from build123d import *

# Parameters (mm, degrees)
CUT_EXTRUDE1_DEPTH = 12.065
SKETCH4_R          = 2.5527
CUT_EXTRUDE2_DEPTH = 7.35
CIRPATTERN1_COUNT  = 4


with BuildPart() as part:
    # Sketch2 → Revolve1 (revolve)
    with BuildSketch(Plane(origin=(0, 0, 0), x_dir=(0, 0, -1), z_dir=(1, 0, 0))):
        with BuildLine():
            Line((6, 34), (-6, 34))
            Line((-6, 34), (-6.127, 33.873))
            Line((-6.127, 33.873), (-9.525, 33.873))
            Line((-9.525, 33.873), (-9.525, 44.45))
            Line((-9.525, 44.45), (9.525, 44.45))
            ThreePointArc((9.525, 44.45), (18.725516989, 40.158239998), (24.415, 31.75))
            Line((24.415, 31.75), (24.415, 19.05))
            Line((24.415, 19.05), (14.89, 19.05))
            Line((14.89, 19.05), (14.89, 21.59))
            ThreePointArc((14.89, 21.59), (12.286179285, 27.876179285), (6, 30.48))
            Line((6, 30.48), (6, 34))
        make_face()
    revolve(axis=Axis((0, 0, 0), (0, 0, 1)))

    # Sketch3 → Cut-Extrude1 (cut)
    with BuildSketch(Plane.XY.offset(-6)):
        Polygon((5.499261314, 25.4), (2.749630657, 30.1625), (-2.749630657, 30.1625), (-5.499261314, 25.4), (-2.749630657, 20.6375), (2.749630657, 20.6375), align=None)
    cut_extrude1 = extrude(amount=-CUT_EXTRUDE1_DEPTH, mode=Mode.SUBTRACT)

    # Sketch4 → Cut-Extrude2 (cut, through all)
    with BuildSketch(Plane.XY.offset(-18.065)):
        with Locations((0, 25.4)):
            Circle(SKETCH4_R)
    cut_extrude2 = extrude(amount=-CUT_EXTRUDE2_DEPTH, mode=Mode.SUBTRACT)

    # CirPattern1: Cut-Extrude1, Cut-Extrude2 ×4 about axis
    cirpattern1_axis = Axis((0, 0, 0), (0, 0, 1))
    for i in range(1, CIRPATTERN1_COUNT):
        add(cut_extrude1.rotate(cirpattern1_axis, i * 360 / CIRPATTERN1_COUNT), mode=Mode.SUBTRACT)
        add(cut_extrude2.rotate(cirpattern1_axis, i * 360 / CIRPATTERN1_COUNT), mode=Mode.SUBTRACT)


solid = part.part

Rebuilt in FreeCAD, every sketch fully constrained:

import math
import FreeCAD as App
import Part
import Sketcher
Q = App.Units.Quantity


def add_polygon(sketch, points):
    """Adds a closed chain of lines whose ends are joined by coincident constraints."""
    first, n = sketch.GeometryCount, len(points)
    for a, b in zip(points, points[1:] + points[:1]):
        sketch.addGeometry(Part.LineSegment(App.Vector(*a, 0), App.Vector(*b, 0)), False)
    for i in range(n):
        sketch.addConstraint(Sketcher.Constraint("Coincident", first + i, 2, first + (i + 1) % n, 1))

doc = App.newDocument("Part")
body = doc.addObject("PartDesign::Body", "Body")

sketch1 = body.newObject("Sketcher::SketchObject", "Sketch")
sketch1.AttachmentSupport = (doc.getObject("YZ_Plane"), [""])
sketch1.MapMode = "FlatFace"
sketch1.addGeometry([
    Part.LineSegment(App.Vector(34, 6, 0), App.Vector(34, -6, 0)),
    Part.LineSegment(App.Vector(34, -6, 0), App.Vector(30.48, -6, 0)),
    Part.ArcOfCircle(Part.Circle(App.Vector(21.59, -6, 0), App.Vector(0, 0, 1), 8.89), math.radians(-90), math.radians(0)),
    Part.LineSegment(App.Vector(21.59, -14.89, 0), App.Vector(19.05, -14.89, 0)),
    Part.LineSegment(App.Vector(19.05, -14.89, 0), App.Vector(19.05, -24.41, 0)),
    Part.LineSegment(App.Vector(19.05, -24.41, 0), App.Vector(31.75, -24.41, 0)),
    Part.ArcOfCircle(Part.Circle(App.Vector(25.66, -6.36, 0), App.Vector(0, 0, 1), 19.05), math.radians(-71), math.radians(-10)),
    Part.LineSegment(App.Vector(44.45, -9.53, 0), App.Vector(44.45, 9.53, 0)),
    Part.LineSegment(App.Vector(44.45, 9.53, 0), App.Vector(33.87, 9.53, 0)),
    Part.LineSegment(App.Vector(33.87, 9.53, 0), App.Vector(33.87, 6.13, 0)),
    Part.LineSegment(App.Vector(33.87, 6.13, 0), App.Vector(34, 6, 0)),
], False)
sketch1.addConstraint([
    Sketcher.Constraint("Coincident", 0, 2, 1, 1),
    Sketcher.Constraint("Coincident", 1, 2, 2, 2),
    Sketcher.Constraint("Tangent", 2, 1, 3, 1),
    Sketcher.Constraint("Coincident", 3, 2, 4, 1),
    Sketcher.Constraint("Coincident", 4, 2, 5, 1),
    Sketcher.Constraint("Coincident", 5, 2, 6, 1),
    Sketcher.Constraint("Coincident", 6, 2, 7, 1),
    Sketcher.Constraint("Coincident", 7, 2, 8, 1),
    Sketcher.Constraint("Coincident", 8, 2, 9, 1),
    Sketcher.Constraint("Coincident", 9, 2, 10, 1),
    Sketcher.Constraint("Coincident", 10, 2, 0, 1),
    Sketcher.Constraint("Vertical", 0),
    Sketcher.Constraint("Horizontal", 1),
    Sketcher.Constraint("Horizontal", 3),
    Sketcher.Constraint("Vertical", 4),
    Sketcher.Constraint("Horizontal", 5),
    Sketcher.Constraint("Vertical", 7),
    Sketcher.Constraint("Horizontal", 8),
    Sketcher.Constraint("Vertical", 9),
    Sketcher.Constraint("Horizontal", 2, 3, 0, 2),
    Sketcher.Constraint("Radius", 2, Q("0.35 in")),
    Sketcher.Constraint("Radius", 6, Q("0.75 in")),
    Sketcher.Constraint("DistanceX", 3, 2, 3, 1, Q("0.1 in")),
    Sketcher.Constraint("DistanceX", 5, 1, 5, 2, Q("0.5 in")),
    Sketcher.Constraint("Angle", 10, Q("-45 deg")),
    Sketcher.Constraint("DistanceY", 7, 1, 7, 2, Q("0.75 in")),
    Sketcher.Constraint("DistanceX", -1, 1, 1, 2, Q("1.2 in")),
    Sketcher.Constraint("DistanceX", 5, 2, 6, 2, Q("0.5 in")),
    Sketcher.Constraint("DistanceY", 4, 2, 4, 1, Q("0.375 in")),
    Sketcher.Constraint("DistanceY", 6, 2, -1, 1, Q("0.375 in")),
    Sketcher.Constraint("DistanceX", 8, 2, 0, 2, Q("0.005 in")),
    Sketcher.Constraint("DistanceX", 1, 2, 1, 1, 3.52),
    Sketcher.Constraint("DistanceY", 0, 2, 0, 1, 12.0),
    Sketcher.Constraint("DistanceY", 9, 2, 9, 1, 3.398),
])
revolution = body.newObject("PartDesign::Revolution", "Revolution")
revolution.Profile = sketch1
revolution.ReferenceAxis = (sketch1, ["V_Axis"])
revolution.Angle = 360

sketch2 = body.newObject("Sketcher::SketchObject", "Sketch001")
sketch2.AttachmentSupport = (doc.getObject("XY_Plane"), [""])
sketch2.MapMode = "FlatFace"
sketch2.AttachmentOffset = App.Placement(App.Vector(0, 0, -6), App.Rotation())
add_polygon(sketch2, [(5, 25), (3, 30), (-3, 30), (-5, 25), (-3, 21), (3, 21)])
sketch2.addConstraint([
    Sketcher.Constraint("Horizontal", 1),
    Sketcher.Constraint("Horizontal", 4),
    Sketcher.Constraint("Symmetric", 2, 2, 5, 2, -2),
    Sketcher.Constraint("Parallel", 0, 3),
    Sketcher.Constraint("Parallel", 2, 5),
    Sketcher.Constraint("Vertical", 1, 2, 3, 2),
    Sketcher.Constraint("Vertical", 0, 2, 4, 2),
    Sketcher.Constraint("DistanceY", -1, 1, 2, 2, Q("1 in")),
    Sketcher.Constraint("Angle", 0, Q("120 deg")),
    Sketcher.Constraint("DistanceY", -1, 1, 0, 2, Q("1.1875 in")),
    Sketcher.Constraint("DistanceX", 1, 2, 1, 1, 5.499261),
])
pocket1 = body.newObject("PartDesign::Pocket", "Pocket")
pocket1.Profile = sketch2
pocket1.Length = Q("0.475 in")

sketch3 = body.newObject("Sketcher::SketchObject", "Sketch002")
sketch3.AttachmentSupport = (doc.getObject("XY_Plane"), [""])
sketch3.MapMode = "FlatFace"
sketch3.AttachmentOffset = App.Placement(App.Vector(0, 0, -18.065), App.Rotation())
sketch3.addGeometry(Part.Circle(App.Vector(0, 25.4, 0), App.Vector(0, 0, 1), 2.6), False)
sketch3.addConstraint([
    Sketcher.Constraint("PointOnObject", 0, 3, -2),
    Sketcher.Constraint("Diameter", 0, Q("0.201 in")),
    Sketcher.Constraint("DistanceY", -1, 1, 0, 3, Q("1 in")),
])
pocket2 = body.newObject("PartDesign::Pocket", "Pocket001")
pocket2.Profile = sketch3
pocket2.Type = "ThroughAll"
doc.recompute()

polarpattern = body.newObject("PartDesign::PolarPattern", "PolarPattern")
polarpattern.Originals = [pocket1, pocket2]
polarpattern.Axis = (doc.getObject("Z_Axis"), [""])
polarpattern.Angle = 360
polarpattern.Occurrences = 4
body.Tip = polarpattern

doc.recompute()
